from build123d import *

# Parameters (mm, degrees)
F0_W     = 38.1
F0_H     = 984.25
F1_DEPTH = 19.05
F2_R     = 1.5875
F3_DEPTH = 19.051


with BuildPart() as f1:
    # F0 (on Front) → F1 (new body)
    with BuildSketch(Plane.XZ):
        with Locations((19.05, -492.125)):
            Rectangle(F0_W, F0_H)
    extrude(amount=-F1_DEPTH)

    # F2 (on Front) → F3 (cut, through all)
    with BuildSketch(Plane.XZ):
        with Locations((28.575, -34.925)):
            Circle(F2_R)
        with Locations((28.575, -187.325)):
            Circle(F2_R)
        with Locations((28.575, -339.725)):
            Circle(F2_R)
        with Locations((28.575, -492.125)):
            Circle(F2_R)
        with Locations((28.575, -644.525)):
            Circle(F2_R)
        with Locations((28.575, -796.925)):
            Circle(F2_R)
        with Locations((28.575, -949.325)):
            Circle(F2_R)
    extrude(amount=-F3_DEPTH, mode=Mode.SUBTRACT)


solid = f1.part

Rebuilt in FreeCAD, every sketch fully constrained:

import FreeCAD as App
import Part
import Sketcher
Q = App.Units.Quantity


def add_polygon(sketch, points):
    """Adds a closed chain of lines whose ends are joined by coincident constraints."""
    first, n = sketch.GeometryCount, len(points)
    for a, b in zip(points, points[1:] + points[:1]):
        sketch.addGeometry(Part.LineSegment(App.Vector(*a, 0), App.Vector(*b, 0)), False)
    for i in range(n):
        sketch.addConstraint(Sketcher.Constraint("Coincident", first + i, 2, first + (i + 1) % n, 1))

doc = App.newDocument("Part")
body = doc.addObject("PartDesign::Body", "Body")

sketch1 = body.newObject("Sketcher::SketchObject", "Sketch")
sketch1.AttachmentSupport = (doc.getObject("XZ_Plane"), [""])
sketch1.MapMode = "FlatFace"
add_polygon(sketch1, [(0, 0), (0, -984.25), (38.1, -984.25), (38.1, 0)])
sketch1.addConstraint([
    Sketcher.Constraint("Vertical", 0),
    Sketcher.Constraint("Horizontal", 1),
    Sketcher.Constraint("Vertical", 2),
    Sketcher.Constraint("Horizontal", 3),
    Sketcher.Constraint("Coincident", 3, 2, -1, 1),
    Sketcher.Constraint("DistanceX", 1, 1, 1, 2, Q("1.5 in")),
    Sketcher.Constraint("DistanceY", 0, 2, 0, 1, Q("38.75 in")),
])
pad1 = body.newObject("PartDesign::Pad", "Pad")
pad1.Profile = sketch1
pad1.Length = Q("0.75 in")
pad1.Reversed = True

sketch2 = body.newObject("Sketcher::SketchObject", "Sketch001")
sketch2.AttachmentSupport = (doc.getObject("XZ_Plane"), [""])
sketch2.MapMode = "FlatFace"
sketch2.addGeometry([
    Part.Circle(App.Vector(28.575, -34.925, 0), App.Vector(0, 0, 1), 1.5875),
    Part.Circle(App.Vector(28.575, -187.325, 0), App.Vector(0, 0, 1), 1.5875),
    Part.Circle(App.Vector(28.575, -339.725, 0), App.Vector(0, 0, 1), 1.5875),
    Part.Circle(App.Vector(28.575, -492.125, 0), App.Vector(0, 0, 1), 1.5875),
    Part.Circle(App.Vector(28.575, -644.525, 0), App.Vector(0, 0, 1), 1.5875),
    Part.Circle(App.Vector(28.575, -796.925, 0), App.Vector(0, 0, 1), 1.5875),
    Part.Circle(App.Vector(28.575, -949.325, 0), App.Vector(0, 0, 1), 1.5875),
], False)
sketch2.addConstraint([
    Sketcher.Constraint("Equal", 0, 1),
    Sketcher.Constraint("Equal", 1, 2),
    Sketcher.Constraint("Equal", 2, 3),
    Sketcher.Constraint("Equal", 3, 4),
    Sketcher.Constraint("Equal", 4, 5),
    Sketcher.Constraint("Equal", 5, 6),
    Sketcher.Constraint("Vertical", 0, 3, 1, 3),
    Sketcher.Constraint("Vertical", 1, 3, 2, 3),
    Sketcher.Constraint("Vertical", 2, 3, 3, 3),
    Sketcher.Constraint("Vertical", 3, 3, 4, 3),
    Sketcher.Constraint("Vertical", 4, 3, 5, 3),
    Sketcher.Constraint("Vertical", 5, 3, 6, 3),
    Sketcher.Constraint("Diameter", 0, Q("0.125 in")),
    Sketcher.Constraint("DistanceY", 1, 3, 0, 3, Q("6 in")),
    Sketcher.Constraint("DistanceY", 2, 3, 1, 3, Q("6 in")),
    Sketcher.Constraint("DistanceY", 3, 3, 2, 3, Q("6 in")),
    Sketcher.Constraint("DistanceY", 4, 3, 3, 3, Q("6 in")),
    Sketcher.Constraint("DistanceY", 5, 3, 4, 3, Q("6 in")),
    Sketcher.Constraint("DistanceY", 6, 3, 5, 3, Q("6 in")),
    Sketcher.Constraint("DistanceX", -1, 1, 0, 3, Q("1.125 in")),
    Sketcher.Constraint("DistanceY", 0, 3, -1, 1, Q("1.375 in")),
])
pocket1 = body.newObject("PartDesign::Pocket", "Pocket")
pocket1.Profile = sketch2
pocket1.Type = "ThroughAll"

doc.recompute()
